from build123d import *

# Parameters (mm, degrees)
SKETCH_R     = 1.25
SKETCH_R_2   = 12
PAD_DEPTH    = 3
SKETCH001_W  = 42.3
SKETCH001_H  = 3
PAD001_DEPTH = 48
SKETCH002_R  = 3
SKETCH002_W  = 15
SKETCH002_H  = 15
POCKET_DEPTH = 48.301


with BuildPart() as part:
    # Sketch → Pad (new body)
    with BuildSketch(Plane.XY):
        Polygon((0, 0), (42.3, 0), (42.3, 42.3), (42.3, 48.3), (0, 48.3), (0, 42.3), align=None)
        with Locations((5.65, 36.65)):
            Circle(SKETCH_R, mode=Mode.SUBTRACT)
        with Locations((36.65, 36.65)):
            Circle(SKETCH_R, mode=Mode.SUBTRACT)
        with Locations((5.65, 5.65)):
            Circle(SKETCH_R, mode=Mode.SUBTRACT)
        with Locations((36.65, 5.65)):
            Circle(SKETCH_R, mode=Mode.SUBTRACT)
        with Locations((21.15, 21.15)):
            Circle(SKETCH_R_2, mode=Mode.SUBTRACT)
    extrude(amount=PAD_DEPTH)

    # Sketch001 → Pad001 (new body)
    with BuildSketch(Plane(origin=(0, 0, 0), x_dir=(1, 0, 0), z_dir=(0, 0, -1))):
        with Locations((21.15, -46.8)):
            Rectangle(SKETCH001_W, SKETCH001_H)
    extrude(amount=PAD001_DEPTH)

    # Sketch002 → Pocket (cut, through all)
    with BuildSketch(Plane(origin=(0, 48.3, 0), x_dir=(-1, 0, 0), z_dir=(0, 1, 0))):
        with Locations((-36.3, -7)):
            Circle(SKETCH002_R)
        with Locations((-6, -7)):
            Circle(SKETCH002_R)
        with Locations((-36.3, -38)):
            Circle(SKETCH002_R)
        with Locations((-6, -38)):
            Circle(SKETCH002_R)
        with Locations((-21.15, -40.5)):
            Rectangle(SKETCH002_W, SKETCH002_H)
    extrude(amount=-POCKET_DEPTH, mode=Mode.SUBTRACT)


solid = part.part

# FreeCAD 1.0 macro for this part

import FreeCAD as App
import Part
import Sketcher
Q = App.Units.Quantity

doc = App.newDocument("Part")
body = doc.addObject("PartDesign::Body", "Body")

sketch1 = body.newObject("Sketcher::SketchObject", "Sketch")
sketch1.AttachmentSupport = (doc.getObject("XY_Plane"), [""])
sketch1.MapMode = "FlatFace"
sketch1.addGeometry([
    Part.LineSegment(App.Vector(0, 0, 0), App.Vector(42.3, 0, 0)),
    Part.LineSegment(App.Vector(42.3, 0, 0), App.Vector(42.3, 48.3, 0)),
    Part.LineSegment(App.Vector(42.3, 48.3, 0), App.Vector(0, 48.3, 0)),
    Part.LineSegment(App.Vector(0, 48.3, 0), App.Vector(0, 0, 0)),
    Part.Circle(App.Vector(5.7, 5.7, 0), App.Vector(0, 0, 1), 1.2),
    Part.Circle(App.Vector(21.1, 21.1, 0), App.Vector(0, 0, 1), 12),
    Part.Circle(App.Vector(36.6, 5.7, 0), App.Vector(0, 0, 1), 1.2),
    Part.Circle(App.Vector(5.7, 36.6, 0), App.Vector(0, 0, 1), 1.2),
    Part.Circle(App.Vector(36.6, 36.6, 0), App.Vector(0, 0, 1), 1.2),
], False)
sketch1.addConstraint([
    Sketcher.Constraint("Coincident", 0, 2, 1, 1),
    Sketcher.Constraint("Coincident", 1, 2, 2, 1),
    Sketcher.Constraint("Coincident", 2, 2, 3, 1),
    Sketcher.Constraint("Coincident", 3, 2, 0, 1),
    Sketcher.Constraint("Horizontal", 0),
    Sketcher.Constraint("Vertical", 1),
    Sketcher.Constraint("Horizontal", 2),
    Sketcher.Constraint("Vertical", 3),
    Sketcher.Constraint("Coincident", 3, 2, -1, 1),
    Sketcher.Constraint("Equal", 4, 6),
    Sketcher.Constraint("Equal", 6, 7),
    Sketcher.Constraint("Equal", 7, 8),
    Sketcher.Constraint("Horizontal", 4, 3, 6, 3),
    Sketcher.Constraint("Horizontal", 7, 3, 8, 3),
    Sketcher.Constraint("Vertical", 4, 3, 7, 3),
    Sketcher.Constraint("Vertical", 6, 3, 8, 3),
    Sketcher.Constraint("Diameter", 5, Q("24 mm")),
    Sketcher.Constraint("Diameter", 4, Q("2.5 mm")),
    Sketcher.Constraint("DistanceX", 0, 1, 0, 2, Q("42.3 mm")),
    Sketcher.Constraint("DistanceY", 1, 1, 1, 2, Q("48.3 mm")),
    Sketcher.Constraint("DistanceX", 4, 3, 6, 3, Q("31 mm")),
    Sketcher.Constraint("DistanceY", 4, 3, 7, 3, Q("31 mm")),
    Sketcher.Constraint("DistanceX", 4, 3, 5, 3, Q("15.5 mm")),
    Sketcher.Constraint("DistanceY", 4, 3, 5, 3, Q("15.5 mm")),
    Sketcher.Constraint("DistanceX", -1, 1, 4, 3, Q("5.65 mm")),
    Sketcher.Constraint("DistanceY", -1, 1, 4, 3, Q("5.65 mm")),
])
pad1 = body.newObject("PartDesign::Pad", "Pad")
pad1.Profile = sketch1
pad1.Length = 3

sketch2 = body.newObject("Sketcher::SketchObject", "Sketch001")
sketch2.AttachmentSupport = (doc.getObject("XY_Plane"), [""])
sketch2.MapMode = "FlatFace"
sketch2.addGeometry([
    Part.LineSegment(App.Vector(0, 45.3, 0), App.Vector(0, 48.3, 0)),
    Part.LineSegment(App.Vector(0, 48.3, 0), App.Vector(42.3, 48.3, 0)),
    Part.LineSegment(App.Vector(42.3, 48.3, 0), App.Vector(42.3, 45.3, 0)),
    Part.LineSegment(App.Vector(42.3, 45.3, 0), App.Vector(0, 45.3, 0)),
], False)
sketch2.addConstraint([
    Sketcher.Constraint("Coincident", 0, 2, 1, 1),
    Sketcher.Constraint("Coincident", 1, 2, 2, 1),
    Sketcher.Constraint("Coincident", 2, 2, 3, 1),
    Sketcher.Constraint("Coincident", 3, 2, 0, 1),
    Sketcher.Constraint("Vertical", 0),
    Sketcher.Constraint("Horizontal", 1),
    Sketcher.Constraint("Vertical", 2),
    Sketcher.Constraint("Horizontal", 3),
    Sketcher.Constraint("PointOnObject", 0, 2, -2),
    Sketcher.Constraint("DistanceY", 0, 1, 0, 2, Q("3 mm")),
    Sketcher.Constraint("DistanceX", 1, 1, 1, 2, Q("42.3 mm")),
    Sketcher.Constraint("DistanceY", -1, 1, 0, 2, Q("48.3 mm")),
])
pad2 = body.newObject("PartDesign::Pad", "Pad001")
pad2.Profile = sketch2
pad2.Length = 48
pad2.Reversed = True

sketch3 = body.newObject("Sketcher::SketchObject", "Sketch002")
sketch3.AttachmentSupport = (doc.getObject("XZ_Plane"), [""])
sketch3.MapMode = "FlatFace"
sketch3.AttachmentOffset = App.Placement(App.Vector(0, 0, -48.3), App.Rotation())
sketch3.addGeometry([
    Part.Circle(App.Vector(36.3, -7, 0), App.Vector(0, 0, 1), 3),
    Part.Circle(App.Vector(6, -7, 0), App.Vector(0, 0, 1), 3),
    Part.Circle(App.Vector(36.3, -38, 0), App.Vector(0, 0, 1), 3),
    Part.Circle(App.Vector(6, -38, 0), App.Vector(0, 0, 1), 3),
    Part.LineSegment(App.Vector(28.6, -33, 0), App.Vector(28.6, -48, 0)),
    Part.LineSegment(App.Vector(28.6, -48, 0), App.Vector(13.7, -48, 0)),
    Part.LineSegment(App.Vector(13.7, -48, 0), App.Vector(13.7, -33, 0)),
    Part.LineSegment(App.Vector(13.7, -33, 0), App.Vector(28.6, -33, 0)),
], False)
sketch3.addConstraint([
    Sketcher.Constraint("Coincident", 4, 2, 5, 1),
    Sketcher.Constraint("Coincident", 5, 2, 6, 1),
    Sketcher.Constraint("Coincident", 6, 2, 7, 1),
    Sketcher.Constraint("Coincident", 7, 2, 4, 1),
    Sketcher.Constraint("Vertical", 4),
    Sketcher.Constraint("Horizontal", 5),
    Sketcher.Constraint("Vertical", 6),
    Sketcher.Constraint("Horizontal", 7),
    Sketcher.Constraint("Equal", 0, 1),
    Sketcher.Constraint("Equal", 1, 2),
    Sketcher.Constraint("Equal", 2, 3),
    Sketcher.Constraint("Horizontal", 0, 3, 1, 3),
    Sketcher.Constraint("Horizontal", 2, 3, 3, 3),
    Sketcher.Constraint("Vertical", 0, 3, 2, 3),
    Sketcher.Constraint("Vertical", 1, 3, 3, 3),
    Sketcher.Constraint("Equal", 7, 4),
    Sketcher.Constraint("Diameter", 0, Q("6 mm")),
    Sketcher.Constraint("DistanceX", 5, 2, 5, 1, Q("15 mm")),
    Sketcher.Constraint("DistanceY", 0, 3, -1, 1, Q("7 mm")),
    Sketcher.Constraint("DistanceX", -1, 1, 1, 3, Q("6 mm")),
    Sketcher.Constraint("DistanceY", 2, 3, -1, 1, Q("38 mm")),
    Sketcher.Constraint("DistanceY", 4, 2, -1, 1, Q("48 mm")),
    Sketcher.Constraint("DistanceX", -1, 1, 0, 3, Q("36.3 mm")),
    Sketcher.Constraint("DistanceX", -1, 1, 4, 2, Q("28.65 mm")),
])
pocket1 = body.newObject("PartDesign::Pocket", "Pocket")
pocket1.Profile = sketch3
pocket1.Type = "ThroughAll"
pocket1.Reversed = True

doc.recompute()
